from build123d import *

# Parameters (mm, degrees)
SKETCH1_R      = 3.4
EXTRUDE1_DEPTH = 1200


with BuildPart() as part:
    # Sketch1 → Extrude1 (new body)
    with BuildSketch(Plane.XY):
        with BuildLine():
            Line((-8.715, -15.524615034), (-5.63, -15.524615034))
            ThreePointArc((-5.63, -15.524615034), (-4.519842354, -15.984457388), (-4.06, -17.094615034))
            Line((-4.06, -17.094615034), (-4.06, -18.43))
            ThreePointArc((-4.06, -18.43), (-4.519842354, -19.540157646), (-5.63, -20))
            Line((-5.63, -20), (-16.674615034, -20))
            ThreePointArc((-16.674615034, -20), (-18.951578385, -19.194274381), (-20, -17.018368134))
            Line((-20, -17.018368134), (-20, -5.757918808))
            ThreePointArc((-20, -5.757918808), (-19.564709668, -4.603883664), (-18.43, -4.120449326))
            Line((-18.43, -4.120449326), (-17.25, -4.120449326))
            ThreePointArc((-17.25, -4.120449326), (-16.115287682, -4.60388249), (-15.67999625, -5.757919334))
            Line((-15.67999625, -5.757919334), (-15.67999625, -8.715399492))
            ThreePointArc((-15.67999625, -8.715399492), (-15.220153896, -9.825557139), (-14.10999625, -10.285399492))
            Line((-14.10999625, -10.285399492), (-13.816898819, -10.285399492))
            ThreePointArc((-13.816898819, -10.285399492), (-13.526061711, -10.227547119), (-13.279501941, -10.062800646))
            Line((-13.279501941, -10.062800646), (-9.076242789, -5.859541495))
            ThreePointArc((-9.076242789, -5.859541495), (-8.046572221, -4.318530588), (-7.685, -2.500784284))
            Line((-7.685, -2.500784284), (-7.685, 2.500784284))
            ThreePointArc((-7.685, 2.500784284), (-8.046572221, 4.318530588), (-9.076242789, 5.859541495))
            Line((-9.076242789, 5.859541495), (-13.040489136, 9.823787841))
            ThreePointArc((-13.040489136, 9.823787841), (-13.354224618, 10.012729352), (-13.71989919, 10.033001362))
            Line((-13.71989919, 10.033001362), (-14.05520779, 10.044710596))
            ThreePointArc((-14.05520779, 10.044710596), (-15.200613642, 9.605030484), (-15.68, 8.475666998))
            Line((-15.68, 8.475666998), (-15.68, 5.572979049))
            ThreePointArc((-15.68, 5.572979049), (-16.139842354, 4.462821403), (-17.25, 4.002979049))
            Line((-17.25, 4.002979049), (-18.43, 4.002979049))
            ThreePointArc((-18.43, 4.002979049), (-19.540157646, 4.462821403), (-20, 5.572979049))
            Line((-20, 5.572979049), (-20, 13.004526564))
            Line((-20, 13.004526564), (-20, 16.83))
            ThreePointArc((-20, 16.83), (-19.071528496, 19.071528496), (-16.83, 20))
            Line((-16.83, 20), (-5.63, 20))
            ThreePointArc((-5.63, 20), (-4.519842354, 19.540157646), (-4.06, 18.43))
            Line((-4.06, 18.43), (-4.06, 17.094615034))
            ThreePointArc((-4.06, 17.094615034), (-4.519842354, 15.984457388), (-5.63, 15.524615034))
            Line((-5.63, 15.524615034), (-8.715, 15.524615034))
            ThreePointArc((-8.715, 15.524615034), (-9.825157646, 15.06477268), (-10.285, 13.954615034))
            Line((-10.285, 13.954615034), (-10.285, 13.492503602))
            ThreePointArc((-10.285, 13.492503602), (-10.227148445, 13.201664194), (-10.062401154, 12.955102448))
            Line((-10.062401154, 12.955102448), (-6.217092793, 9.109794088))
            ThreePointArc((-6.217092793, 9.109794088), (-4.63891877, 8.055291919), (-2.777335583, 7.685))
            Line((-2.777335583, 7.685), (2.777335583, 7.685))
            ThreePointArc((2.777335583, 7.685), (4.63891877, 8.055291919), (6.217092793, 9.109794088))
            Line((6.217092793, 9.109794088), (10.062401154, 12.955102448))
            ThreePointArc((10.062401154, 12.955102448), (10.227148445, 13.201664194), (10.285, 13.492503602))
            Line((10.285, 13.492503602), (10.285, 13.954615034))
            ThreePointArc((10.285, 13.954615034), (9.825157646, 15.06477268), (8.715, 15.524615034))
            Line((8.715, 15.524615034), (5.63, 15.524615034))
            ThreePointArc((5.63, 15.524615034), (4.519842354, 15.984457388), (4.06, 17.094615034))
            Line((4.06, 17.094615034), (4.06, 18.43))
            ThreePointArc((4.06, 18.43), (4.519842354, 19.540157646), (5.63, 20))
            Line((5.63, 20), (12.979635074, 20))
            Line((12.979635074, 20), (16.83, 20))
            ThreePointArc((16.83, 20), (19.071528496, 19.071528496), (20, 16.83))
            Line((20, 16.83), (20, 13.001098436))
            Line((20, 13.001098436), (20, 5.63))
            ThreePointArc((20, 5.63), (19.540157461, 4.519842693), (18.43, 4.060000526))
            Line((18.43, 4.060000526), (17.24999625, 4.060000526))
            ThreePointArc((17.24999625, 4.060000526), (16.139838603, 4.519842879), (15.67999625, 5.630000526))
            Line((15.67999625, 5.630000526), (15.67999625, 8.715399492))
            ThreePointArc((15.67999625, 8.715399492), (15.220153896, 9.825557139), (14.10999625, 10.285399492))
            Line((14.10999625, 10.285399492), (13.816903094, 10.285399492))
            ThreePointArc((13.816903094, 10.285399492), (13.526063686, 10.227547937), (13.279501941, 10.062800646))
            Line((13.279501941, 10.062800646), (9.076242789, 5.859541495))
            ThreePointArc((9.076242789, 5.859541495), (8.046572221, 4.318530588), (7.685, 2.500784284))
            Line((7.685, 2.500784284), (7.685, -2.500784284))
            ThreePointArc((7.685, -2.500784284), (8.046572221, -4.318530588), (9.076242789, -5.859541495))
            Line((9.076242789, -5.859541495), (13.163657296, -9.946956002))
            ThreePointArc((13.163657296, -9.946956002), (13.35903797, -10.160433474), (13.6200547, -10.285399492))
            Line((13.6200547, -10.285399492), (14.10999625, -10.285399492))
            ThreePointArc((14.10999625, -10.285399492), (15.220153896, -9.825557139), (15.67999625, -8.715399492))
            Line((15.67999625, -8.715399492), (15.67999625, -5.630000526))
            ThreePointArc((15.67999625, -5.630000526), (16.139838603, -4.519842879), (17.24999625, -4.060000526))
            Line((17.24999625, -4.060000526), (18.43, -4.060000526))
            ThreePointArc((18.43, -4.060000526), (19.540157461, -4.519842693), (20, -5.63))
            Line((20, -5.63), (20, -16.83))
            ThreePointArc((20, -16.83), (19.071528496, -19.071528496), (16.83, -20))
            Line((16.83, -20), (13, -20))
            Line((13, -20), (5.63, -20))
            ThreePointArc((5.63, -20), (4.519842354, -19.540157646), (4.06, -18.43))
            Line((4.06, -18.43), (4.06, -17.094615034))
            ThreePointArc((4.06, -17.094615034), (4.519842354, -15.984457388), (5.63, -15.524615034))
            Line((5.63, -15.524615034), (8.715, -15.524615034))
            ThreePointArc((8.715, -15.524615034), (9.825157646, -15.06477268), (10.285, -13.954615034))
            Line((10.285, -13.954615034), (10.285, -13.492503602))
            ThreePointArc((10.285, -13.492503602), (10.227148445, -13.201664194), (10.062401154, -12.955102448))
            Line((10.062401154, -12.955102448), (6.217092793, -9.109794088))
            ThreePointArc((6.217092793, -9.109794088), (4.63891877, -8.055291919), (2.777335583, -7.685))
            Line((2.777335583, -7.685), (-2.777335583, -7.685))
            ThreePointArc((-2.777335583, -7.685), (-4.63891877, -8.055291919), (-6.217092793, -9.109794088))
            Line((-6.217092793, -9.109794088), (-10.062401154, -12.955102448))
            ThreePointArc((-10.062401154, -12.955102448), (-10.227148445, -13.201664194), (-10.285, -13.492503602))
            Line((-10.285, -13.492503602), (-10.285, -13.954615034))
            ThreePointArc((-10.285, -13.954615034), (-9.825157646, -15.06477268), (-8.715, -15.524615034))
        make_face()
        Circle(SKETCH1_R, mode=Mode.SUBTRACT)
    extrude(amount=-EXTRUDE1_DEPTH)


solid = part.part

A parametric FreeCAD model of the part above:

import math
import FreeCAD as App
import Part
import Sketcher
Q = App.Units.Quantity

doc = App.newDocument("Part")
params = doc.addObject("Spreadsheet::Sheet", "Params")
for row, (alias, value) in enumerate([
    ("sketch1_diameter", "6.8 mm"),
    ("sketch1_radius", "1.57 mm"),
    ("sketch1_radius2", "0.76 mm"),
    ("sketch1_radius3", "3.17 mm"),
    ("sketch1_radius4", "4.75 mm"),
    ("pad1_length", "1200 mm"),
], start=1):
    params.set(f"A{row}", alias)
    params.set(f"B{row}", "=" + value)
    params.setAlias(f"B{row}", alias)

body = doc.addObject("PartDesign::Body", "Body")

# Sketch on XY plane
sketch1 = doc.addObject("Sketcher::SketchObject", "Sketch")
body.addObject(sketch1)
sketch1.AttachmentSupport = (doc.XY_Plane, [""])
sketch1.MapMode = "FlatFace"
sketch1.addGeometry([
    Part.LineSegment(App.Vector(-5.63, -15.52, 0), App.Vector(-8.71, -15.52, 0)),  # 0
    Part.ArcOfCircle(Part.Circle(App.Vector(-8.71, -13.95, 0), App.Vector(0, 0, 1), 1.57), math.radians(-180), math.radians(-90)),  # 1
    Part.LineSegment(App.Vector(-10.29, -13.95, 0), App.Vector(-10.29, -13.49, 0)),  # 2
    Part.ArcOfCircle(Part.Circle(App.Vector(-9.52, -13.49, 0), App.Vector(0, 0, 1), 0.76), math.radians(135), math.radians(180)),  # 3
    Part.LineSegment(App.Vector(-10.06, -12.96, 0), App.Vector(-6.22, -9.11, 0)),  # 4
    Part.ArcOfCircle(Part.Circle(App.Vector(-2.78, -12.55, 0), App.Vector(0, 0, 1), 4.86), math.radians(90), math.radians(135)),  # 5
    Part.LineSegment(App.Vector(-2.78, -7.68, 0), App.Vector(2.78, -7.68, 0)),  # 6
    Part.ArcOfCircle(Part.Circle(App.Vector(2.78, -12.55, 0), App.Vector(0, 0, 1), 4.86), math.radians(45), math.radians(90)),  # 7
    Part.LineSegment(App.Vector(6.22, -9.11, 0), App.Vector(10.06, -12.96, 0)),  # 8
    Part.ArcOfCircle(Part.Circle(App.Vector(9.52, -13.49, 0), App.Vector(0, 0, 1), 0.76), math.radians(0), math.radians(45)),  # 9
    Part.LineSegment(App.Vector(10.29, -13.49, 0), App.Vector(10.29, -13.95, 0)),  # 10
    Part.ArcOfCircle(Part.Circle(App.Vector(8.71, -13.95, 0), App.Vector(0, 0, 1), 1.57), math.radians(-90), math.radians(0)),  # 11
    Part.LineSegment(App.Vector(8.71, -15.52, 0), App.Vector(5.63, -15.52, 0)),  # 12
    Part.ArcOfCircle(Part.Circle(App.Vector(5.63, -17.09, 0), App.Vector(0, 0, 1), 1.57), math.radians(90), math.radians(180)),  # 13
    Part.LineSegment(App.Vector(4.06, -17.09, 0), App.Vector(4.06, -18.43, 0)),  # 14
    Part.ArcOfCircle(Part.Circle(App.Vector(5.63, -18.43, 0), App.Vector(0, 0, 1), 1.57), math.radians(-180), math.radians(-90)),  # 15
    Part.LineSegment(App.Vector(5.63, -20, 0), App.Vector(16.83, -20, 0)),  # 16
    Part.ArcOfCircle(Part.Circle(App.Vector(16.83, -16.83, 0), App.Vector(0, 0, 1), 3.17), math.radians(-90), math.radians(0)),  # 17
    Part.LineSegment(App.Vector(20, -16.83, 0), App.Vector(20, -5.63, 0)),  # 18
    Part.ArcOfCircle(Part.Circle(App.Vector(18.43, -5.63, 0), App.Vector(0, 0, 1), 1.57), math.radians(0), math.radians(90)),  # 19
    Part.LineSegment(App.Vector(18.43, -4.06, 0), App.Vector(17.25, -4.06, 0)),  # 20
    Part.ArcOfCircle(Part.Circle(App.Vector(17.25, -5.63, 0), App.Vector(0, 0, 1), 1.57), math.radians(90), math.radians(180)),  # 21
    Part.LineSegment(App.Vector(15.68, -5.63, 0), App.Vector(15.68, -8.72, 0)),  # 22
    Part.ArcOfCircle(Part.Circle(App.Vector(14.11, -8.72, 0), App.Vector(0, 0, 1), 1.57), math.radians(-90), math.radians(0)),  # 23
    Part.LineSegment(App.Vector(14.11, -10.29, 0), App.Vector(13.62, -10.29, 0)),  # 24
    Part.ArcOfCircle(Part.Circle(App.Vector(13.81, -9.55, 0), App.Vector(0, 0, 1), 0.76), math.radians(-149), math.radians(-105)),  # 25
    Part.LineSegment(App.Vector(13.16, -9.95, 0), App.Vector(9.08, -5.86, 0)),  # 26
    Part.ArcOfCircle(Part.Circle(App.Vector(12.44, -2.5, 0), App.Vector(0, 0, 1), 4.75), math.radians(-180), math.radians(-135)),  # 27
    Part.LineSegment(App.Vector(7.68, -2.5, 0), App.Vector(7.68, 2.5, 0)),  # 28
    Part.ArcOfCircle(Part.Circle(App.Vector(12.44, 2.5, 0), App.Vector(0, 0, 1), 4.75), math.radians(135), math.radians(180)),  # 29
    Part.LineSegment(App.Vector(9.08, 5.86, 0), App.Vector(13.28, 10.06, 0)),  # 30
    Part.ArcOfCircle(Part.Circle(App.Vector(13.82, 9.53, 0), App.Vector(0, 0, 1), 0.76), math.radians(90), math.radians(135)),  # 31
    Part.LineSegment(App.Vector(13.82, 10.29, 0), App.Vector(14.11, 10.29, 0)),  # 32
    Part.ArcOfCircle(Part.Circle(App.Vector(14.11, 8.72, 0), App.Vector(0, 0, 1), 1.57), math.radians(0), math.radians(90)),  # 33
    Part.LineSegment(App.Vector(15.68, 8.72, 0), App.Vector(15.68, 5.63, 0)),  # 34
    Part.ArcOfCircle(Part.Circle(App.Vector(17.25, 5.63, 0), App.Vector(0, 0, 1), 1.57), math.radians(180), math.radians(270)),  # 35
    Part.LineSegment(App.Vector(17.25, 4.06, 0), App.Vector(18.43, 4.06, 0)),  # 36
    Part.ArcOfCircle(Part.Circle(App.Vector(18.43, 5.63, 0), App.Vector(0, 0, 1), 1.57), math.radians(-90), math.radians(0)),  # 37
    Part.LineSegment(App.Vector(20, 5.63, 0), App.Vector(20, 16.83, 0)),  # 38
    Part.ArcOfCircle(Part.Circle(App.Vector(16.83, 16.83, 0), App.Vector(0, 0, 1), 3.17), math.radians(0), math.radians(90)),  # 39
    Part.LineSegment(App.Vector(16.83, 20, 0), App.Vector(5.63, 20, 0)),  # 40
    Part.ArcOfCircle(Part.Circle(App.Vector(5.63, 18.43, 0), App.Vector(0, 0, 1), 1.57), math.radians(90), math.radians(180)),  # 41
    Part.LineSegment(App.Vector(4.06, 18.43, 0), App.Vector(4.06, 17.09, 0)),  # 42
    Part.ArcOfCircle(Part.Circle(App.Vector(5.63, 17.09, 0), App.Vector(0, 0, 1), 1.57), math.radians(-180), math.radians(-90)),  # 43
    Part.LineSegment(App.Vector(5.63, 15.52, 0), App.Vector(8.71, 15.52, 0)),  # 44
    Part.ArcOfCircle(Part.Circle(App.Vector(8.71, 13.95, 0), App.Vector(0, 0, 1), 1.57), math.radians(0), math.radians(90)),  # 45
    Part.LineSegment(App.Vector(10.29, 13.95, 0), App.Vector(10.29, 13.49, 0)),  # 46
    Part.ArcOfCircle(Part.Circle(App.Vector(9.52, 13.49, 0), App.Vector(0, 0, 1), 0.76), math.radians(-45), math.radians(0)),  # 47
    Part.LineSegment(App.Vector(10.06, 12.96, 0), App.Vector(6.22, 9.11, 0)),  # 48
    Part.ArcOfCircle(Part.Circle(App.Vector(2.78, 12.55, 0), App.Vector(0, 0, 1), 4.86), math.radians(-90), math.radians(-45)),  # 49
    Part.LineSegment(App.Vector(2.78, 7.68, 0), App.Vector(-2.78, 7.68, 0)),  # 50
    Part.ArcOfCircle(Part.Circle(App.Vector(-2.78, 12.55, 0), App.Vector(0, 0, 1), 4.86), math.radians(-135), math.radians(-90)),  # 51
    Part.LineSegment(App.Vector(-6.22, 9.11, 0), App.Vector(-10.06, 12.96, 0)),  # 52
    Part.ArcOfCircle(Part.Circle(App.Vector(-9.52, 13.49, 0), App.Vector(0, 0, 1), 0.76), math.radians(180), math.radians(225)),  # 53
    Part.LineSegment(App.Vector(-10.29, 13.49, 0), App.Vector(-10.29, 13.95, 0)),  # 54
    Part.ArcOfCircle(Part.Circle(App.Vector(-8.71, 13.95, 0), App.Vector(0, 0, 1), 1.57), math.radians(90), math.radians(180)),  # 55
    Part.LineSegment(App.Vector(-8.71, 15.52, 0), App.Vector(-5.63, 15.52, 0)),  # 56
    Part.ArcOfCircle(Part.Circle(App.Vector(-5.63, 17.09, 0), App.Vector(0, 0, 1), 1.57), math.radians(-90), math.radians(0)),  # 57
    Part.LineSegment(App.Vector(-4.06, 17.09, 0), App.Vector(-4.06, 18.43, 0)),  # 58
    Part.ArcOfCircle(Part.Circle(App.Vector(-5.63, 18.43, 0), App.Vector(0, 0, 1), 1.57), math.radians(0), math.radians(90)),  # 59
    Part.LineSegment(App.Vector(-5.63, 20, 0), App.Vector(-16.83, 20, 0)),  # 60
    Part.ArcOfCircle(Part.Circle(App.Vector(-16.83, 16.83, 0), App.Vector(0, 0, 1), 3.17), math.radians(90), math.radians(180)),  # 61
    Part.LineSegment(App.Vector(-20, 16.83, 0), App.Vector(-20, 5.57, 0)),  # 62
    Part.ArcOfCircle(Part.Circle(App.Vector(-18.43, 5.57, 0), App.Vector(0, 0, 1), 1.57), math.radians(-180), math.radians(-90)),  # 63
    Part.LineSegment(App.Vector(-18.43, 4, 0), App.Vector(-17.25, 4, 0)),  # 64
    Part.ArcOfCircle(Part.Circle(App.Vector(-17.25, 5.57, 0), App.Vector(0, 0, 1), 1.57), math.radians(-90), math.radians(0)),  # 65
    Part.LineSegment(App.Vector(-15.68, 5.57, 0), App.Vector(-15.68, 8.48, 0)),  # 66
    Part.ArcOfCircle(Part.Circle(App.Vector(-14.11, 8.48, 0), App.Vector(0, 0, 1), 1.57), math.radians(88), math.radians(180)),  # 67
    Part.LineSegment(App.Vector(-14.06, 10.04, 0), App.Vector(-13.72, 10.03, 0)),  # 68
    Part.ArcOfCircle(Part.Circle(App.Vector(-13.58, 9.29, 0), App.Vector(0, 0, 1), 0.76), math.radians(45), math.radians(101)),  # 69
    Part.LineSegment(App.Vector(-13.04, 9.82, 0), App.Vector(-9.08, 5.86, 0)),  # 70
    Part.ArcOfCircle(Part.Circle(App.Vector(-12.44, 2.5, 0), App.Vector(0, 0, 1), 4.75), math.radians(0), math.radians(45)),  # 71
    Part.LineSegment(App.Vector(-7.68, 2.5, 0), App.Vector(-7.68, -2.5, 0)),  # 72
    Part.ArcOfCircle(Part.Circle(App.Vector(-12.44, -2.5, 0), App.Vector(0, 0, 1), 4.75), math.radians(-45), math.radians(0)),  # 73
    Part.LineSegment(App.Vector(-9.08, -5.86, 0), App.Vector(-13.28, -10.06, 0)),  # 74
    Part.ArcOfCircle(Part.Circle(App.Vector(-13.82, -9.53, 0), App.Vector(0, 0, 1), 0.76), math.radians(-90), math.radians(-45)),  # 75
    Part.LineSegment(App.Vector(-13.82, -10.29, 0), App.Vector(-14.11, -10.29, 0)),  # 76
    Part.ArcOfCircle(Part.Circle(App.Vector(-14.11, -8.72, 0), App.Vector(0, 0, 1), 1.57), math.radians(180), math.radians(270)),  # 77
    Part.LineSegment(App.Vector(-15.68, -8.72, 0), App.Vector(-15.68, -5.76, 0)),  # 78
    Part.ArcOfCircle(Part.Circle(App.Vector(-17.25, -5.69, 0), App.Vector(0, 0, 1), 1.57), math.radians(-2), math.radians(90)),  # 79
    Part.LineSegment(App.Vector(-17.25, -4.12, 0), App.Vector(-18.43, -4.12, 0)),  # 80
    Part.ArcOfCircle(Part.Circle(App.Vector(-18.43, -5.69, 0), App.Vector(0, 0, 1), 1.57), math.radians(90), math.radians(182)),  # 81
    Part.LineSegment(App.Vector(-20, -5.76, 0), App.Vector(-20, -17.02, 0)),  # 82
    Part.ArcOfCircle(Part.Circle(App.Vector(-16.84, -16.83, 0), App.Vector(0, 0, 1), 3.17), math.radians(-177), math.radians(-87)),  # 83
    Part.LineSegment(App.Vector(-16.67, -20, 0), App.Vector(-5.63, -20, 0)),  # 84
    Part.ArcOfCircle(Part.Circle(App.Vector(-5.63, -18.43, 0), App.Vector(0, 0, 1), 1.57), math.radians(-90), math.radians(0)),  # 85
    Part.LineSegment(App.Vector(-4.06, -18.43, 0), App.Vector(-4.06, -17.09, 0)),  # 86
    Part.ArcOfCircle(Part.Circle(App.Vector(-5.63, -17.09, 0), App.Vector(0, 0, 1), 1.57), math.radians(0), math.radians(90)),  # 87
    Part.Circle(App.Vector(0, 0, 0), App.Vector(0, 0, 1), 3.4),  # 88
], False)
sketch1.addConstraint([
    Sketcher.Constraint("Tangent", 0, 2, 1, 2),
    Sketcher.Constraint("Tangent", 1, 1, 2, 1),
    Sketcher.Constraint("Tangent", 2, 2, 3, 2),
    Sketcher.Constraint("Tangent", 3, 1, 4, 1),
    Sketcher.Constraint("Tangent", 4, 2, 5, 2),
    Sketcher.Constraint("Tangent", 5, 1, 6, 1),
    Sketcher.Constraint("Tangent", 6, 2, 7, 2),
    Sketcher.Constraint("Tangent", 7, 1, 8, 1),
    Sketcher.Constraint("Tangent", 8, 2, 9, 2),
    Sketcher.Constraint("Tangent", 9, 1, 10, 1),
    Sketcher.Constraint("Tangent", 10, 2, 11, 2),
    Sketcher.Constraint("Tangent", 11, 1, 12, 1),
    Sketcher.Constraint("Tangent", 12, 2, 13, 1),
    Sketcher.Constraint("Tangent", 13, 2, 14, 1),
    Sketcher.Constraint("Tangent", 14, 2, 15, 1),
    Sketcher.Constraint("Tangent", 15, 2, 16, 1),
    Sketcher.Constraint("Tangent", 16, 2, 17, 1),
    Sketcher.Constraint("Tangent", 17, 2, 18, 1),
    Sketcher.Constraint("Tangent", 18, 2, 19, 1),
    Sketcher.Constraint("Tangent", 19, 2, 20, 1),
    Sketcher.Constraint("Tangent", 20, 2, 21, 1),
    Sketcher.Constraint("Tangent", 21, 2, 22, 1),
    Sketcher.Constraint("Tangent", 22, 2, 23, 2),
    Sketcher.Constraint("Tangent", 23, 1, 24, 1),
    Sketcher.Constraint("Coincident", 24, 2, 25, 2),
    Sketcher.Constraint("Coincident", 25, 1, 26, 1),
    Sketcher.Constraint("Tangent", 26, 2, 27, 2),
    Sketcher.Constraint("Tangent", 27, 1, 28, 1),
    Sketcher.Constraint("Tangent", 28, 2, 29, 2),
    Sketcher.Constraint("Tangent", 29, 1, 30, 1),
    Sketcher.Constraint("Tangent", 30, 2, 31, 2),
    Sketcher.Constraint("Tangent", 31, 1, 32, 1),
    Sketcher.Constraint("Tangent", 32, 2, 33, 2),
    Sketcher.Constraint("Tangent", 33, 1, 34, 1),
    Sketcher.Constraint("Tangent", 34, 2, 35, 1),
    Sketcher.Constraint("Tangent", 35, 2, 36, 1),
    Sketcher.Constraint("Tangent", 36, 2, 37, 1),
    Sketcher.Constraint("Tangent", 37, 2, 38, 1),
    Sketcher.Constraint("Tangent", 38, 2, 39, 1),
    Sketcher.Constraint("Tangent", 39, 2, 40, 1),
    Sketcher.Constraint("Tangent", 40, 2, 41, 1),
    Sketcher.Constraint("Tangent", 41, 2, 42, 1),
    Sketcher.Constraint("Tangent", 42, 2, 43, 1),
    Sketcher.Constraint("Tangent", 43, 2, 44, 1),
    Sketcher.Constraint("Tangent", 44, 2, 45, 2),
    Sketcher.Constraint("Tangent", 45, 1, 46, 1),
    Sketcher.Constraint("Tangent", 46, 2, 47, 2),
    Sketcher.Constraint("Tangent", 47, 1, 48, 1),
    Sketcher.Constraint("Tangent", 48, 2, 49, 2),
    Sketcher.Constraint("Tangent", 49, 1, 50, 1),
    Sketcher.Constraint("Tangent", 50, 2, 51, 2),
    Sketcher.Constraint("Tangent", 51, 1, 52, 1),
    Sketcher.Constraint("Tangent", 52, 2, 53, 2),
    Sketcher.Constraint("Tangent", 53, 1, 54, 1),
    Sketcher.Constraint("Tangent", 54, 2, 55, 2),
    Sketcher.Constraint("Tangent", 55, 1, 56, 1),
    Sketcher.Constraint("Tangent", 56, 2, 57, 1),
    Sketcher.Constraint("Tangent", 57, 2, 58, 1),
    Sketcher.Constraint("Tangent", 58, 2, 59, 1),
    Sketcher.Constraint("Tangent", 59, 2, 60, 1),
    Sketcher.Constraint("Tangent", 60, 2, 61, 1),
    Sketcher.Constraint("Tangent", 61, 2, 62, 1),
    Sketcher.Constraint("Tangent", 62, 2, 63, 1),
    Sketcher.Constraint("Tangent", 63, 2, 64, 1),
    Sketcher.Constraint("Tangent", 64, 2, 65, 1),
    Sketcher.Constraint("Tangent", 65, 2, 66, 1),
    Sketcher.Constraint("Tangent", 66, 2, 67, 2),
    Sketcher.Constraint("Tangent", 67, 1, 68, 1),
    Sketcher.Constraint("Coincident", 68, 2, 69, 2),
    Sketcher.Constraint("Tangent", 69, 1, 70, 1),
    Sketcher.Constraint("Tangent", 70, 2, 71, 2),
    Sketcher.Constraint("Tangent", 71, 1, 72, 1),
    Sketcher.Constraint("Tangent", 72, 2, 73, 2),
    Sketcher.Constraint("Tangent", 73, 1, 74, 1),
    Sketcher.Constraint("Tangent", 74, 2, 75, 2),
    Sketcher.Constraint("Coincident", 75, 1, 76, 1),
    Sketcher.Constraint("Tangent", 76, 2, 77, 2),
    Sketcher.Constraint("Tangent", 77, 1, 78, 1),
    Sketcher.Constraint("Coincident", 78, 2, 79, 1),
    Sketcher.Constraint("Coincident", 79, 2, 80, 1),
    Sketcher.Constraint("Coincident", 80, 2, 81, 1),
    Sketcher.Constraint("Coincident", 81, 2, 82, 1),
    Sketcher.Constraint("Coincident", 82, 2, 83, 1),
    Sketcher.Constraint("Coincident", 83, 2, 84, 1),
    Sketcher.Constraint("Tangent", 84, 2, 85, 1),
    Sketcher.Constraint("Tangent", 85, 2, 86, 1),
    Sketcher.Constraint("Tangent", 86, 2, 87, 1),
    Sketcher.Constraint("Tangent", 87, 2, 0, 1),
    Sketcher.Constraint("Horizontal", 0),
    Sketcher.Constraint("Vertical", 2),
    Sketcher.Constraint("Horizontal", 6),
    Sketcher.Constraint("Vertical", 10),
    Sketcher.Constraint("Horizontal", 12),
    Sketcher.Constraint("Vertical", 14),
    Sketcher.Constraint("Horizontal", 16),
    Sketcher.Constraint("Vertical", 18),
    Sketcher.Constraint("Horizontal", 20),
    Sketcher.Constraint("Vertical", 22),
    Sketcher.Constraint("Horizontal", 24),
    Sketcher.Constraint("Vertical", 28),
    Sketcher.Constraint("Horizontal", 32),
    Sketcher.Constraint("Vertical", 34),
    Sketcher.Constraint("Horizontal", 36),
    Sketcher.Constraint("Vertical", 38),
    Sketcher.Constraint("Horizontal", 40),
    Sketcher.Constraint("Vertical", 42),
    Sketcher.Constraint("Horizontal", 44),
    Sketcher.Constraint("Vertical", 46),
    Sketcher.Constraint("Horizontal", 50),
    Sketcher.Constraint("Vertical", 54),
    Sketcher.Constraint("Horizontal", 56),
    Sketcher.Constraint("Vertical", 58),
    Sketcher.Constraint("Horizontal", 60),
    Sketcher.Constraint("Vertical", 62),
    Sketcher.Constraint("Horizontal", 64),
    Sketcher.Constraint("Vertical", 66),
    Sketcher.Constraint("Vertical", 72),
    Sketcher.Constraint("Horizontal", 76),
    Sketcher.Constraint("Vertical", 78),
    Sketcher.Constraint("Horizontal", 80),
    Sketcher.Constraint("Vertical", 82),
    Sketcher.Constraint("Horizontal", 84),
    Sketcher.Constraint("Vertical", 86),
    Sketcher.Constraint("Coincident", 88, 3, -1, 1),
    Sketcher.Constraint("Equal", 5, 7),
    Sketcher.Constraint("Equal", 3, 9),
    Sketcher.Constraint("Equal", 1, 11),
    Sketcher.Constraint("Equal", 11, 13),
    Sketcher.Constraint("Equal", 13, 15),
    Sketcher.Constraint("Equal", 15, 19),
    Sketcher.Constraint("Equal", 19, 21),
    Sketcher.Constraint("Equal", 21, 23),
    Sketcher.Constraint("Equal", 9, 25),
    Sketcher.Constraint("Equal", 27, 29),
    Sketcher.Constraint("Equal", 25, 31),
    Sketcher.Constraint("Equal", 23, 33),
    Sketcher.Constraint("Equal", 33, 35),
    Sketcher.Constraint("Equal", 35, 37),
    Sketcher.Constraint("Equal", 17, 39),
    Sketcher.Constraint("Equal", 37, 41),
    Sketcher.Constraint("Equal", 41, 43),
    Sketcher.Constraint("Equal", 43, 45),
    Sketcher.Constraint("Equal", 31, 47),
    Sketcher.Constraint("Equal", 7, 49),
    Sketcher.Constraint("Equal", 49, 51),
    Sketcher.Constraint("Equal", 47, 53),
    Sketcher.Constraint("Equal", 45, 55),
    Sketcher.Constraint("Equal", 55, 57),
    Sketcher.Constraint("Equal", 57, 59),
    Sketcher.Constraint("Equal", 39, 61),
    Sketcher.Constraint("Equal", 59, 63),
    Sketcher.Constraint("Equal", 63, 65),
    Sketcher.Constraint("Equal", 65, 67),
    Sketcher.Constraint("Equal", 53, 69),
    Sketcher.Constraint("Equal", 29, 71),
    Sketcher.Constraint("Equal", 71, 73),
    Sketcher.Constraint("Equal", 69, 75),
    Sketcher.Constraint("Equal", 67, 77),
    Sketcher.Constraint("Equal", 77, 79),
    Sketcher.Constraint("Equal", 79, 81),
    Sketcher.Constraint("Equal", 61, 83),
    Sketcher.Constraint("Equal", 81, 85),
    Sketcher.Constraint("Equal", 85, 87),
    Sketcher.Constraint("Symmetric", 1, 3, 45, 3, -1, 1),
    Sketcher.Constraint("Symmetric", 5, 3, 49, 3, -1, 1),
    Sketcher.Constraint("Symmetric", 9, 3, 53, 3, -1, 1),
    Sketcher.Constraint("Symmetric", 13, 3, 57, 3, -1, 1),
    Sketcher.Constraint("Symmetric", 17, 3, 61, 3, -1, 1),
    Sketcher.Constraint("Symmetric", 27, 3, 71, 3, -1, 1),
    Sketcher.Constraint("Symmetric", 31, 3, 75, 3, -1, 1),
    Sketcher.Constraint("Symmetric", 41, 3, 85, 3, -1, 1),
    Sketcher.Constraint("Symmetric", 3, 3, 9, 3, -2),
    Sketcher.Constraint("Symmetric", 43, 3, 57, 3, -2),
    Sketcher.Constraint("Symmetric", 39, 3, 61, 3, -2),
    Sketcher.Constraint("Symmetric", 23, 3, 77, 3, -2),
    Sketcher.Constraint("Symmetric", 48, 2, 51, 1, -2),
    Sketcher.Constraint("Symmetric", 29, 1, 70, 2, -2),
    Sketcher.Constraint("Symmetric", 26, 2, 73, 1, -2),
    Sketcher.Constraint("Symmetric", 21, 3, 35, 3, -1),
    Sketcher.Constraint("Perpendicular", 4, 8),
    Sketcher.Constraint("Parallel", 8, 26),
    Sketcher.Constraint("Perpendicular", 26, 30),
    Sketcher.Constraint("Horizontal", 78, 2, 81, 2),
    Sketcher.Constraint("Vertical", 64, 2, 79, 2),
    Sketcher.Constraint("Vertical", 63, 2, 80, 2),
    Sketcher.Constraint("Vertical", 62, 2, 81, 2),
    Sketcher.Constraint("Equal", 60, 18),
    Sketcher.Constraint("Diameter", 88, Q("6.8 mm")),
    Sketcher.Constraint("Angle", 68, Q("-2 deg")),
    Sketcher.Constraint("Radius", 1, Q("1.57 mm")),
    Sketcher.Constraint("Radius", 3, Q("0.76 mm")),
    Sketcher.Constraint("Radius", 17, Q("3.17 mm")),
    Sketcher.Constraint("Radius", 27, Q("4.75 mm")),
    Sketcher.Constraint("DistanceX", 16, 1, 16, 2, Q("11.2 mm")),
    Sketcher.Constraint("DistanceY", 15, 2, -1, 1, Q("20 mm")),
    Sketcher.Constraint("DistanceX", -1, 1, 17, 2, Q("20 mm")),
    Sketcher.Constraint("DistanceX", 64, 1, 64, 2, Q("1.18 mm")),
    Sketcher.Constraint("DistanceX", 0, 2, 0, 1, Q("3.085 mm")),
    Sketcher.Constraint("Radius", 5, Q("4.864551 mm")),
    Sketcher.Constraint("DistanceY", 22, 2, 22, 1, Q("3.085399 mm")),
    Sketcher.Constraint("DistanceX", -1, 1, 27, 3, Q("12.435 mm")),
    Sketcher.Constraint("DistanceY", 5, 1, -1, 1, Q("7.685 mm")),
    Sketcher.Constraint("DistanceY", -1, 1, 68, 2, Q("10.033001 mm")),
    Sketcher.Constraint("DistanceX", 6, 1, 6, 2, Q("5.554671 mm")),
    Sketcher.Constraint("DistanceX", 24, 2, 24, 1, Q("0.489942 mm")),
    Sketcher.Constraint("DistanceY", 2, 1, 2, 2, Q("0.462111 mm")),
    Sketcher.Constraint("DistanceY", 28, 1, 28, 2, Q("5.001569 mm")),
    Sketcher.Constraint("DistanceY", 62, 2, 62, 1, Q("11.257021 mm")),
    Sketcher.Constraint("DistanceY", 78, 1, 78, 2, Q("2.95748 mm")),
    Sketcher.Constraint("DistanceY", 82, 2, 82, 1, Q("11.260449 mm")),
    Sketcher.Constraint("DistanceX", 68, 2, -1, 1, Q("13.719899 mm")),
    Sketcher.Constraint("DistanceX", 75, 1, -1, 1, Q("13.816899 mm")),
    Sketcher.Constraint("DistanceX", 20, 2, 20, 1, Q("1.180004 mm")),
    Sketcher.Constraint("DistanceX", 84, 1, 84, 2, Q("11.044615 mm")),
    Sketcher.Constraint("DistanceX", -1, 1, 25, 3, Q("13.811732 mm")),
    Sketcher.Constraint("DistanceY", 79, 3, -1, 1, Q("5.690449 mm")),
])
sketch1.setExpression("Constraints[187]", "Params.sketch1_diameter")
sketch1.setExpression("Constraints[189]", "Params.sketch1_radius")
sketch1.setExpression("Constraints[190]", "Params.sketch1_radius2")
sketch1.setExpression("Constraints[191]", "Params.sketch1_radius3")
sketch1.setExpression("Constraints[192]", "Params.sketch1_radius4")
pad1 = doc.addObject("PartDesign::Pad", "Pad")
body.addObject(pad1)
pad1.Profile = sketch1
pad1.setExpression("Length", "Params.pad1_length")
pad1.Reversed = True

doc.recompute()
